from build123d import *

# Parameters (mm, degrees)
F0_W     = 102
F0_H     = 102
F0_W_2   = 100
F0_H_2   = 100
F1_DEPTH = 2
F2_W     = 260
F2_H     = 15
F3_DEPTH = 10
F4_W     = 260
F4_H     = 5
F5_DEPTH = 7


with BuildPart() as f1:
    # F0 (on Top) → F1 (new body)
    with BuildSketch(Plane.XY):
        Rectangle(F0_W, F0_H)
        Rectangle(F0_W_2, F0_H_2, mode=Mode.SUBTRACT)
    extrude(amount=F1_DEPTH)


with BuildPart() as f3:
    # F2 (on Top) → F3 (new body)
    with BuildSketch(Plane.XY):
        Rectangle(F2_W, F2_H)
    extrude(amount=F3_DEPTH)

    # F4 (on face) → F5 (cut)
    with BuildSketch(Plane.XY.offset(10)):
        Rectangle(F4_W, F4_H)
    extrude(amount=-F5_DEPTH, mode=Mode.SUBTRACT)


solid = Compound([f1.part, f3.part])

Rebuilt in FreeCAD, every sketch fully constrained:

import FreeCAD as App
import Part
import Sketcher
Q = App.Units.Quantity

doc = App.newDocument("Part")
body = doc.addObject("PartDesign::Body", "Body")

# Sketch on XY plane
sketch1 = body.newObject("Sketcher::SketchObject", "Sketch")
sketch1.AttachmentSupport = (doc.getObject("XY_Plane"), [""])
sketch1.MapMode = "FlatFace"
sketch1.addGeometry([
    Part.LineSegment(App.Vector(-51, 51, 0), App.Vector(-51, -51, 0)),  # 0
    Part.LineSegment(App.Vector(-51, -51, 0), App.Vector(51, -51, 0)),  # 1
    Part.LineSegment(App.Vector(51, -51, 0), App.Vector(51, 51, 0)),  # 2
    Part.LineSegment(App.Vector(51, 51, 0), App.Vector(-51, 51, 0)),  # 3
    Part.LineSegment(App.Vector(50, -50, 0), App.Vector(-50, -50, 0)),  # 4
    Part.LineSegment(App.Vector(-50, -50, 0), App.Vector(-50, 50, 0)),  # 5
    Part.LineSegment(App.Vector(-50, 50, 0), App.Vector(50, 50, 0)),  # 6
    Part.LineSegment(App.Vector(50, 50, 0), App.Vector(50, -50, 0)),  # 7
], False)
sketch1.addConstraint([
    Sketcher.Constraint("Coincident", 0, 2, 1, 1),
    Sketcher.Constraint("Coincident", 1, 2, 2, 1),
    Sketcher.Constraint("Coincident", 2, 2, 3, 1),
    Sketcher.Constraint("Coincident", 3, 2, 0, 1),
    Sketcher.Constraint("Coincident", 4, 2, 5, 1),
    Sketcher.Constraint("Coincident", 5, 2, 6, 1),
    Sketcher.Constraint("Coincident", 6, 2, 7, 1),
    Sketcher.Constraint("Coincident", 7, 2, 4, 1),
    Sketcher.Constraint("Vertical", 0),
    Sketcher.Constraint("Horizontal", 1),
    Sketcher.Constraint("Vertical", 2),
    Sketcher.Constraint("Horizontal", 3),
    Sketcher.Constraint("Horizontal", 4),
    Sketcher.Constraint("Vertical", 5),
    Sketcher.Constraint("Horizontal", 6),
    Sketcher.Constraint("Vertical", 7),
    Sketcher.Constraint("Symmetric", 0, 2, 2, 2, -1, 1),
    Sketcher.Constraint("Symmetric", 4, 2, 6, 2, -1, 1),
    Sketcher.Constraint("Equal", 3, 0),
    Sketcher.Constraint("Equal", 6, 5),
    Sketcher.Constraint("DistanceX", 1, 1, 1, 2, Q("102 mm")),
    Sketcher.Constraint("DistanceX", 4, 2, 4, 1, Q("100 mm")),
])
pad1 = body.newObject("PartDesign::Pad", "Pad")
pad1.Profile = sketch1
pad1.Length = 2
body2 = doc.addObject("PartDesign::Body", "Body001")

# Sketch on XY plane
sketch2 = body2.newObject("Sketcher::SketchObject", "Sketch001")
sketch2.AttachmentSupport = (doc.getObject("XY_Plane001"), [""])
sketch2.MapMode = "FlatFace"
sketch2.addGeometry([
    Part.LineSegment(App.Vector(-130, 8, 0), App.Vector(-130, -8, 0)),
    Part.LineSegment(App.Vector(-130, -8, 0), App.Vector(130, -8, 0)),
    Part.LineSegment(App.Vector(130, -8, 0), App.Vector(130, 8, 0)),
    Part.LineSegment(App.Vector(130, 8, 0), App.Vector(-130, 8, 0)),
], False)
sketch2.addConstraint([
    Sketcher.Constraint("Coincident", 0, 2, 1, 1),
    Sketcher.Constraint("Coincident", 1, 2, 2, 1),
    Sketcher.Constraint("Coincident", 2, 2, 3, 1),
    Sketcher.Constraint("Coincident", 3, 2, 0, 1),
    Sketcher.Constraint("Vertical", 0),
    Sketcher.Constraint("Horizontal", 1),
    Sketcher.Constraint("Vertical", 2),
    Sketcher.Constraint("Horizontal", 3),
    Sketcher.Constraint("Symmetric", 0, 2, 2, 2, -1, 1),
    Sketcher.Constraint("DistanceX", 1, 1, 1, 2, Q("260 mm")),
    Sketcher.Constraint("DistanceY", 0, 2, 0, 1, Q("15 mm")),
])
pad2 = body2.newObject("PartDesign::Pad", "Pad001")
pad2.Profile = sketch2
pad2.Length = 10

# Sketch on XY plane
sketch3 = body2.newObject("Sketcher::SketchObject", "Sketch002")
sketch3.AttachmentSupport = (doc.getObject("XY_Plane001"), [""])
sketch3.MapMode = "FlatFace"
sketch3.AttachmentOffset = App.Placement(App.Vector(0, 0, 10), App.Rotation())
sketch3.addGeometry([
    Part.LineSegment(App.Vector(-130, 2, 0), App.Vector(-130, -2, 0)),
    Part.LineSegment(App.Vector(-130, -2, 0), App.Vector(130, -2, 0)),
    Part.LineSegment(App.Vector(130, -2, 0), App.Vector(130, 2, 0)),
    Part.LineSegment(App.Vector(130, 2, 0), App.Vector(-130, 2, 0)),
], False)
sketch3.addConstraint([
    Sketcher.Constraint("Coincident", 0, 2, 1, 1),
    Sketcher.Constraint("Coincident", 1, 2, 2, 1),
    Sketcher.Constraint("Coincident", 2, 2, 3, 1),
    Sketcher.Constraint("Coincident", 3, 2, 0, 1),
    Sketcher.Constraint("Vertical", 0),
    Sketcher.Constraint("Horizontal", 1),
    Sketcher.Constraint("Vertical", 2),
    Sketcher.Constraint("Horizontal", 3),
    Sketcher.Constraint("Symmetric", 0, 2, 2, 2, -1, 1),
    Sketcher.Constraint("DistanceX", 1, 1, 1, 2, Q("260 mm")),
    Sketcher.Constraint("DistanceY", 0, 2, 0, 1, Q("5 mm")),
])
pocket1 = body2.newObject("PartDesign::Pocket", "Pocket")
pocket1.Profile = sketch3
pocket1.Length = 7

doc.recompute()
